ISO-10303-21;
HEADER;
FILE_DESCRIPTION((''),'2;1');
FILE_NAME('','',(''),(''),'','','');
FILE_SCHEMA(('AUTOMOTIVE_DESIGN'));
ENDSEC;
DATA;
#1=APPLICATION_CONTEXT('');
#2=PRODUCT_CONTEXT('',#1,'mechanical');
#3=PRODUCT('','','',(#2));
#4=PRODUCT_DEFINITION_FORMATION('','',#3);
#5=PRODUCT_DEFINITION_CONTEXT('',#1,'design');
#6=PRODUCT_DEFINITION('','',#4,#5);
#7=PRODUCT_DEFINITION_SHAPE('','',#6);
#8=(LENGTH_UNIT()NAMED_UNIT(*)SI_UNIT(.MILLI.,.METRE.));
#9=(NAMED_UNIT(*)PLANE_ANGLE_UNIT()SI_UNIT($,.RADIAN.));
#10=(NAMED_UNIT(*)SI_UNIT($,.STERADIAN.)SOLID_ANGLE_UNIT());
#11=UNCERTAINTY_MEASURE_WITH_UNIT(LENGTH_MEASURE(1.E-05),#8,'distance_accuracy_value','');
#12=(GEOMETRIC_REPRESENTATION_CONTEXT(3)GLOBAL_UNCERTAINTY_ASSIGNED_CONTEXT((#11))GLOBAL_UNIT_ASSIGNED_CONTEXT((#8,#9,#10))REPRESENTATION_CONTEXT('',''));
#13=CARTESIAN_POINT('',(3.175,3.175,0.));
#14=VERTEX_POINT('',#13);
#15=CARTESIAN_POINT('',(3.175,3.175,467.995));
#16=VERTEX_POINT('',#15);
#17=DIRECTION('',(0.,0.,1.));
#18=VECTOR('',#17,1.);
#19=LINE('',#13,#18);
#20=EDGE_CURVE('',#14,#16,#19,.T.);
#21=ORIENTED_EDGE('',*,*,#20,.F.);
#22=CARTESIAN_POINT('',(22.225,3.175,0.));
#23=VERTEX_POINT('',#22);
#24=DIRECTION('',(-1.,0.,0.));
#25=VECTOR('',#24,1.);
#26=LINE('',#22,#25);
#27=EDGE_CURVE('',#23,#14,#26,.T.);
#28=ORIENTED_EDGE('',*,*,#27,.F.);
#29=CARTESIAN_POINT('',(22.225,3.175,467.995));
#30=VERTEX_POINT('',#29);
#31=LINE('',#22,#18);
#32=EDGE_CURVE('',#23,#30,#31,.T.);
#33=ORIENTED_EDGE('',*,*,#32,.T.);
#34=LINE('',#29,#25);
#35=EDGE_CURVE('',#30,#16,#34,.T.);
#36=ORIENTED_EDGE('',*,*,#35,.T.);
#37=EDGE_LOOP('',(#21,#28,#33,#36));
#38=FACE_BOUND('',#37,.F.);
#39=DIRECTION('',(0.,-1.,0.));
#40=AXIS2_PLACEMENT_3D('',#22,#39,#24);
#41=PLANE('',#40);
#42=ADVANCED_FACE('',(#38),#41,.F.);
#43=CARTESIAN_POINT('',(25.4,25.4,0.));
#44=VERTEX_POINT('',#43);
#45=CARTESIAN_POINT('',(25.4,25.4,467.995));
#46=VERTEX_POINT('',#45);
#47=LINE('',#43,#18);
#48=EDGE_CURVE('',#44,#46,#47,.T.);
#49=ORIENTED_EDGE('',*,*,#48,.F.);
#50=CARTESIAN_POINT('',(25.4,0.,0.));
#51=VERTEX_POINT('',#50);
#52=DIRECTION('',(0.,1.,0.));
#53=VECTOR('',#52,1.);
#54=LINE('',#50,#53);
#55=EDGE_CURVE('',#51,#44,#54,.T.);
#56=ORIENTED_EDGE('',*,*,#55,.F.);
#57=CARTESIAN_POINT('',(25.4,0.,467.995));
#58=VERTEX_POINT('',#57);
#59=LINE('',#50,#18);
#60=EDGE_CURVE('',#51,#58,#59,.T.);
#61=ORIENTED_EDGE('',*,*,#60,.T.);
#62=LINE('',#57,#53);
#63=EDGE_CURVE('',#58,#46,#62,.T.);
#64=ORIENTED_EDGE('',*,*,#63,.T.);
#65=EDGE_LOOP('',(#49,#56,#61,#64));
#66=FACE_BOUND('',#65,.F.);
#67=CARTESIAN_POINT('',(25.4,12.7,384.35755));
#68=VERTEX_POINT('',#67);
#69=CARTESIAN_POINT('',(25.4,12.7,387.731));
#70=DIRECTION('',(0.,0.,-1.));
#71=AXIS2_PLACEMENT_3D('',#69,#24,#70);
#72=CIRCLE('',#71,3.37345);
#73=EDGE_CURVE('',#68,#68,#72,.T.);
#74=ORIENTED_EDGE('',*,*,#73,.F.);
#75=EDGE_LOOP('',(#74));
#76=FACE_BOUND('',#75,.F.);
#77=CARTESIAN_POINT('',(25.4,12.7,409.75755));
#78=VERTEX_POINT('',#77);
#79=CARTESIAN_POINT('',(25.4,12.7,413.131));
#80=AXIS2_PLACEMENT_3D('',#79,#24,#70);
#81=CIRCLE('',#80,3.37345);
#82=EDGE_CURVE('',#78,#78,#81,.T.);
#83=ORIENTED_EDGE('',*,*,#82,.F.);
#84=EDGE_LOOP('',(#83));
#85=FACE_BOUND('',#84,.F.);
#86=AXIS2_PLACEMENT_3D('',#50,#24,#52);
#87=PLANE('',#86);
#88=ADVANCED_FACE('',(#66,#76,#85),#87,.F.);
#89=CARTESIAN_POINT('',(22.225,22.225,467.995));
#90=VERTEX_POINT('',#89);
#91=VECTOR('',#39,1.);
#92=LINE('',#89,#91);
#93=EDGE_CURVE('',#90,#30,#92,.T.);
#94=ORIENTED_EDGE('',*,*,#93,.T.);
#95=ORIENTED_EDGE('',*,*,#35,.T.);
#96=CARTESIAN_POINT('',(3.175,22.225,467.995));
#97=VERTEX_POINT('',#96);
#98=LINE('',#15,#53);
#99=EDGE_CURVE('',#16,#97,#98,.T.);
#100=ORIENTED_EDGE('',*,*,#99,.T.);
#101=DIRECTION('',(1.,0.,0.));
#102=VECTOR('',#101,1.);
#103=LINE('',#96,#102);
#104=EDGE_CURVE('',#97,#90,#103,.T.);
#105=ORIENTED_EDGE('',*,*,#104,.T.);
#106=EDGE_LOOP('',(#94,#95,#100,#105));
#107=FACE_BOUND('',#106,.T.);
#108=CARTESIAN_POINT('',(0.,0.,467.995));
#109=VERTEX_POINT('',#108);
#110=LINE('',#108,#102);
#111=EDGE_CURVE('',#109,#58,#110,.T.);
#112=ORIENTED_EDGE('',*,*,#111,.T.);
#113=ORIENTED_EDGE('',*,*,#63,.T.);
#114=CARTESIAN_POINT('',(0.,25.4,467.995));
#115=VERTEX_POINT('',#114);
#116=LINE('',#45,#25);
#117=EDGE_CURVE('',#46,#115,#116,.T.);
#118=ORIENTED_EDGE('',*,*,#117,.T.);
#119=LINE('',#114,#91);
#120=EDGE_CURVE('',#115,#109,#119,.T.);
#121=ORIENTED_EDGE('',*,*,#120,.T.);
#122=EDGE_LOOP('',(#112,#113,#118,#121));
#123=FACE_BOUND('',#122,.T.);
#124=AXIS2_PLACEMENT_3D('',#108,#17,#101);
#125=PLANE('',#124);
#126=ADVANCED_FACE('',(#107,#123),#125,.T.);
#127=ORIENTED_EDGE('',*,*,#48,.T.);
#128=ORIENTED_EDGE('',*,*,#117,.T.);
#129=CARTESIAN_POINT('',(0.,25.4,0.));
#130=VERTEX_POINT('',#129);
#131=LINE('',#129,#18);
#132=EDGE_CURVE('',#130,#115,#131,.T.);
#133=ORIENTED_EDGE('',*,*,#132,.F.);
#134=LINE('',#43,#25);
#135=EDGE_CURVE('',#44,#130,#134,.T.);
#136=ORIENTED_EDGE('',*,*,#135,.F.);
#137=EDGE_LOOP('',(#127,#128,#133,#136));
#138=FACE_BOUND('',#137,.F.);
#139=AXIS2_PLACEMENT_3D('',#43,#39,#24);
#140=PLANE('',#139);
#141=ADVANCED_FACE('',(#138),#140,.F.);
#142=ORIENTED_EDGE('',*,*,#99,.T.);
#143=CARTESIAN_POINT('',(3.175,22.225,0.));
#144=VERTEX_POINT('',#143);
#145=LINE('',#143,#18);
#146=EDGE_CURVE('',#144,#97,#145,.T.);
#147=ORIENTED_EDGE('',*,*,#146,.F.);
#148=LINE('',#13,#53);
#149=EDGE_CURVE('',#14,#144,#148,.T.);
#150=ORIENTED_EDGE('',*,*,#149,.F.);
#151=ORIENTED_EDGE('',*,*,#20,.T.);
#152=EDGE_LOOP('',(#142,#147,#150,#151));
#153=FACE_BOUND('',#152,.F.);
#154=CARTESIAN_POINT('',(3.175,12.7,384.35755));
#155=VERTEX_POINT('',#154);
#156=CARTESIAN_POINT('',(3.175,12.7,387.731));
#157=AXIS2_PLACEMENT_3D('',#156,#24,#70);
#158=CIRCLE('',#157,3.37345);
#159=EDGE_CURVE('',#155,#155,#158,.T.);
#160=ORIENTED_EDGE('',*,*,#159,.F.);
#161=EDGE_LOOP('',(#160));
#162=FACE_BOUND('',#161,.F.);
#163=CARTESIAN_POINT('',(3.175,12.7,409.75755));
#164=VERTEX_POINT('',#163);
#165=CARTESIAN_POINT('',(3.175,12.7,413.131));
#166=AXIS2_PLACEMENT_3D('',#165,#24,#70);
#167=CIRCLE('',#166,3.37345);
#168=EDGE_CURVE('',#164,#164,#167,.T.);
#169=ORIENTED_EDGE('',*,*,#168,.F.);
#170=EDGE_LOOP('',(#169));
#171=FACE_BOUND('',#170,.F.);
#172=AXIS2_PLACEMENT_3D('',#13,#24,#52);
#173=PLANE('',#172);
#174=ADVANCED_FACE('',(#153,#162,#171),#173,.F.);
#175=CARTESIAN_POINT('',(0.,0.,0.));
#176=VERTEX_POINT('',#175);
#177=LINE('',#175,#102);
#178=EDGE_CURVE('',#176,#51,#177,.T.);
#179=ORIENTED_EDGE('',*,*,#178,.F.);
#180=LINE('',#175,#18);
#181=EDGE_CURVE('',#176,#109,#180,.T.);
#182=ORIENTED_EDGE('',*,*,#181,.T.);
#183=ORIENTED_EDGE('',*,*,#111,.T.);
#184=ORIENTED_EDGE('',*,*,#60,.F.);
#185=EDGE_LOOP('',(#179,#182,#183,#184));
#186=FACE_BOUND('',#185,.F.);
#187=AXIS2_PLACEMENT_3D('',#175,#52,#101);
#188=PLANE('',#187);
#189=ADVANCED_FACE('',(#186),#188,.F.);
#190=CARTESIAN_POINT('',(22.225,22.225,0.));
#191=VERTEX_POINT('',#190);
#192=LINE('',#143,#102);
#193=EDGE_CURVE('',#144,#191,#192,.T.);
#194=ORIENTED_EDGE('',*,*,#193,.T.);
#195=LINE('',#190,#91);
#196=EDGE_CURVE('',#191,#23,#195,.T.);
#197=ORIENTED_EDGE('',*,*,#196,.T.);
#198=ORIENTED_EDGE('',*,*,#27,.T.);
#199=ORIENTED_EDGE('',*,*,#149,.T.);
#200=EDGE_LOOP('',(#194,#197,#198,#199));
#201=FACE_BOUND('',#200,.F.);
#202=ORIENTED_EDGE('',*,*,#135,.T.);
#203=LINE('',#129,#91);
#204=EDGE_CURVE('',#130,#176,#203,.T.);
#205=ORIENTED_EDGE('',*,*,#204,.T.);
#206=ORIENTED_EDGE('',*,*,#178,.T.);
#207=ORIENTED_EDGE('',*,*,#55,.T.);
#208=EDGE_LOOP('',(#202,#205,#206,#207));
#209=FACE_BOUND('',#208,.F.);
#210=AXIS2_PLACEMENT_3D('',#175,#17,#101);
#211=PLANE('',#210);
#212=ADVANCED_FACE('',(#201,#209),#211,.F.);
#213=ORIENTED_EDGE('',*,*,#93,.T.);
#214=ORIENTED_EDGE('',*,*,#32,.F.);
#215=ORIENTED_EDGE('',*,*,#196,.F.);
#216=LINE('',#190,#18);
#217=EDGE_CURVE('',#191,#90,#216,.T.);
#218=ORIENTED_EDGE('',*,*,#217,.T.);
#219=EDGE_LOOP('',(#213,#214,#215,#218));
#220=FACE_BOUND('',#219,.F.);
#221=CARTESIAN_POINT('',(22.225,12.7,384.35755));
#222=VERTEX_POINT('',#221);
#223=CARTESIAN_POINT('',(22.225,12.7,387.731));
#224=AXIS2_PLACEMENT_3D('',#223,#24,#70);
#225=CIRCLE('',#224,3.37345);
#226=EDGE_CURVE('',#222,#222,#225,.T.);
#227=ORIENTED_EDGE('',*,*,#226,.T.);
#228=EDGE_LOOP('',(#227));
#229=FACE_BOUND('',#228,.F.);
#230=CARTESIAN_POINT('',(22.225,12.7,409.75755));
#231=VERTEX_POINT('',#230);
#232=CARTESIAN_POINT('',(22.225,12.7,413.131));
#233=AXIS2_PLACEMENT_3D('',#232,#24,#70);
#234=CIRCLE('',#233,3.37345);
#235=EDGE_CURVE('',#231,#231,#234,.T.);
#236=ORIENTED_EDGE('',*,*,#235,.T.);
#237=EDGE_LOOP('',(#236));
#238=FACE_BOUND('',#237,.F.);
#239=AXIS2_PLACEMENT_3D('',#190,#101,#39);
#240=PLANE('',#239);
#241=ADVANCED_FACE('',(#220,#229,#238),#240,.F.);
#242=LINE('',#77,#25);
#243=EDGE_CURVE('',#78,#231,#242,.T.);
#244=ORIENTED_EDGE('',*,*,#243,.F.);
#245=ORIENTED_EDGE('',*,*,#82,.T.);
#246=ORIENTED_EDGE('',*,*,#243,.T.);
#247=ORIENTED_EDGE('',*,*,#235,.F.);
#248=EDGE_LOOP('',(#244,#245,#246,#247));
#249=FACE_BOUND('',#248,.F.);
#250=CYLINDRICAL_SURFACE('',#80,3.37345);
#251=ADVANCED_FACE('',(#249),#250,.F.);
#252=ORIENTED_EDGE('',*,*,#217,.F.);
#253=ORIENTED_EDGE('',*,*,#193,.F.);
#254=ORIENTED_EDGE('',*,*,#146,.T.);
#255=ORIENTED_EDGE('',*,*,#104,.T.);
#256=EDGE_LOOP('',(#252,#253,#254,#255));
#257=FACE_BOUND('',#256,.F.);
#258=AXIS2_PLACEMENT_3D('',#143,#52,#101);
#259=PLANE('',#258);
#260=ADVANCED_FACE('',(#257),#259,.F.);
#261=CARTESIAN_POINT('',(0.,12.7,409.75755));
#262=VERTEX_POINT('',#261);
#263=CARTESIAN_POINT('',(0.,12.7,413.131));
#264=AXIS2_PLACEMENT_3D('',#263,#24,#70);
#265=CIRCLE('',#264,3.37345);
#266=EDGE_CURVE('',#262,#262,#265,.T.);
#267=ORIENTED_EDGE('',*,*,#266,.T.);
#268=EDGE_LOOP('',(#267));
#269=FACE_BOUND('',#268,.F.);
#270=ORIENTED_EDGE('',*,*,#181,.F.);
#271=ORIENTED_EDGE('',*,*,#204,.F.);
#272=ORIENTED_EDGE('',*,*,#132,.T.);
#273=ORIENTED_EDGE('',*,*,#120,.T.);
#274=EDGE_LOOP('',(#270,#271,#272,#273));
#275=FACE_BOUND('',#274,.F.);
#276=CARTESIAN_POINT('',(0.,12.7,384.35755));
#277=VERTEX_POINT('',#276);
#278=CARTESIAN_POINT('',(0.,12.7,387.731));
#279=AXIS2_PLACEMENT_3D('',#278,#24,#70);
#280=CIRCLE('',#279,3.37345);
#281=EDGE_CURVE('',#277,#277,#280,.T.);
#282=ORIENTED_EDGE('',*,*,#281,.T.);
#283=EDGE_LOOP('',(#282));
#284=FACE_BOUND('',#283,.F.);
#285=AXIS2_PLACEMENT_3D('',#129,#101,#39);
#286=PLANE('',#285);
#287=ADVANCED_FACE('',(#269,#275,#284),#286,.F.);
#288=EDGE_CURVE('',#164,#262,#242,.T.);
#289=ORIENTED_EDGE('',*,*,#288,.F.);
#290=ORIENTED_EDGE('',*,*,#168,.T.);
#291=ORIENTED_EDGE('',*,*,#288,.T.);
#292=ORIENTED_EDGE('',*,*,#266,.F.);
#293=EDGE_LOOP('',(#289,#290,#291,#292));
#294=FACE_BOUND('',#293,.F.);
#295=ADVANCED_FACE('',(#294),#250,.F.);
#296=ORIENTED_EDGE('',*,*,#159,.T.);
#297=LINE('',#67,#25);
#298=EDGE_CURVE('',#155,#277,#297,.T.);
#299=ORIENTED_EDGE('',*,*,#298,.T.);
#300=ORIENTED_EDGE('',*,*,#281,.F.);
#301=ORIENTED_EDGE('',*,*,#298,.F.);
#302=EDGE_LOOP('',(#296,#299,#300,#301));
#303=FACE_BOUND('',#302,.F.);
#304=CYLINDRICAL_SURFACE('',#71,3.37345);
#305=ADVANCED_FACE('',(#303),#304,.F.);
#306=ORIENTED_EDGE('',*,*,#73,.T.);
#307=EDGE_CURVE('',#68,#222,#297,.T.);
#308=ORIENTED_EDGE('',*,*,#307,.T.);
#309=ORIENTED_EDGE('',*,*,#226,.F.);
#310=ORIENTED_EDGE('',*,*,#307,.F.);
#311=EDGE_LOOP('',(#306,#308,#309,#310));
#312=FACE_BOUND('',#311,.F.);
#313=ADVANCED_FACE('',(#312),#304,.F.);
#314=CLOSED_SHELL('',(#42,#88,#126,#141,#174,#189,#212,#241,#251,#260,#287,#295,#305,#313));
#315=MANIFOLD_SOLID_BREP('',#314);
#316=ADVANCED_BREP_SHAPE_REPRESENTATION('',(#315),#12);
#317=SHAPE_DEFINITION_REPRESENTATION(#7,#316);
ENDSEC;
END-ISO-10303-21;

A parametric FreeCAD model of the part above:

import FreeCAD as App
import Part
import Sketcher
from FreeCAD import Vector
Q = App.Units.Quantity

doc = App.newDocument("Part")
body = doc.addObject("PartDesign::Body", "Body")

# Sketch on XY plane
sketch1 = body.newObject("Sketcher::SketchObject", "Sketch")
sketch1.AttachmentSupport = (doc.getObject("XY_Plane"), [""])
sketch1.MapMode = "FlatFace"
sketch1.addGeometry([
    Part.LineSegment(Vector(0, 25.4, 0), Vector(0, 0, 0)),  # 0
    Part.LineSegment(Vector(0, 0, 0), Vector(25.4, 0, 0)),  # 1
    Part.LineSegment(Vector(25.4, 0, 0), Vector(25.4, 25.4, 0)),  # 2
    Part.LineSegment(Vector(25.4, 25.4, 0), Vector(0, 25.4, 0)),  # 3
    Part.LineSegment(Vector(3.175, 22.225, 0), Vector(22.225, 22.225, 0)),  # 4
    Part.LineSegment(Vector(22.225, 22.225, 0), Vector(22.225, 3.175, 0)),  # 5
    Part.LineSegment(Vector(22.225, 3.175, 0), Vector(3.175, 3.175, 0)),  # 6
    Part.LineSegment(Vector(3.175, 3.175, 0), Vector(3.175, 22.225, 0)),  # 7
], False)
sketch1.addConstraint([
    Sketcher.Constraint("Coincident", 0, 2, 1, 1),
    Sketcher.Constraint("Coincident", 1, 2, 2, 1),
    Sketcher.Constraint("Coincident", 2, 2, 3, 1),
    Sketcher.Constraint("Coincident", 3, 2, 0, 1),
    Sketcher.Constraint("Coincident", 4, 2, 5, 1),
    Sketcher.Constraint("Coincident", 5, 2, 6, 1),
    Sketcher.Constraint("Coincident", 6, 2, 7, 1),
    Sketcher.Constraint("Coincident", 7, 2, 4, 1),
    Sketcher.Constraint("Vertical", 0),
    Sketcher.Constraint("Horizontal", 1),
    Sketcher.Constraint("Vertical", 2),
    Sketcher.Constraint("Horizontal", 3),
    Sketcher.Constraint("Horizontal", 4),
    Sketcher.Constraint("Vertical", 5),
    Sketcher.Constraint("Horizontal", 6),
    Sketcher.Constraint("Vertical", 7),
    Sketcher.Constraint("Coincident", 0, 2, -1, 1),
    Sketcher.Constraint("Equal", 3, 0),
    Sketcher.Constraint("Equal", 6, 5),
    Sketcher.Constraint("DistanceX", 1, 1, 1, 2, Q("1 in")),
    Sketcher.Constraint("DistanceY", -1, 1, 5, 2, Q("0.125 in")),
    Sketcher.Constraint("DistanceX", -1, 1, 6, 2, Q("0.125 in")),
    Sketcher.Constraint("DistanceX", 4, 2, 2, 2, Q("0.125 in")),
])
pad1 = body.newObject("PartDesign::Pad", "Pad")
pad1.Profile = sketch1
pad1.Length = Q("18.425 in")

# Sketch on YZ plane
sketch2 = body.newObject("Sketcher::SketchObject", "Sketch001")
sketch2.AttachmentSupport = (doc.getObject("YZ_Plane"), [""])
sketch2.MapMode = "FlatFace"
sketch2.AttachmentOffset = App.Placement(Vector(0, 0, 1 * 25.4), App.Rotation())
sketch2.addGeometry([
    Part.Circle(Vector(12.7, 413.131, 0), Vector(0, 0, 1), 3.37345),
    Part.Circle(Vector(12.7, 387.731, 0), Vector(0, 0, 1), 3.37345),
], False)
sketch2.addConstraint([
    Sketcher.Constraint("Equal", 0, 1),
    Sketcher.Constraint("Vertical", 0, 3, 1, 3),
    Sketcher.Constraint("Diameter", 0, Q("0.2656299 in")),
    Sketcher.Constraint("DistanceY", 1, 3, 0, 3, Q("1 in")),
    Sketcher.Constraint("DistanceX", -1, 1, 0, 3, Q("0.5 in")),
    Sketcher.Constraint("DistanceY", -1, 1, 0, 3, Q("16.265 in")),
])
doc.recompute()
hole = body.newObject("PartDesign::Hole", "Hole")
hole.Profile = sketch2
hole.ThreadType = "None"
hole.Diameter = Q("0.265626 in")
hole.DepthType = "ThroughAll"

doc.recompute()
